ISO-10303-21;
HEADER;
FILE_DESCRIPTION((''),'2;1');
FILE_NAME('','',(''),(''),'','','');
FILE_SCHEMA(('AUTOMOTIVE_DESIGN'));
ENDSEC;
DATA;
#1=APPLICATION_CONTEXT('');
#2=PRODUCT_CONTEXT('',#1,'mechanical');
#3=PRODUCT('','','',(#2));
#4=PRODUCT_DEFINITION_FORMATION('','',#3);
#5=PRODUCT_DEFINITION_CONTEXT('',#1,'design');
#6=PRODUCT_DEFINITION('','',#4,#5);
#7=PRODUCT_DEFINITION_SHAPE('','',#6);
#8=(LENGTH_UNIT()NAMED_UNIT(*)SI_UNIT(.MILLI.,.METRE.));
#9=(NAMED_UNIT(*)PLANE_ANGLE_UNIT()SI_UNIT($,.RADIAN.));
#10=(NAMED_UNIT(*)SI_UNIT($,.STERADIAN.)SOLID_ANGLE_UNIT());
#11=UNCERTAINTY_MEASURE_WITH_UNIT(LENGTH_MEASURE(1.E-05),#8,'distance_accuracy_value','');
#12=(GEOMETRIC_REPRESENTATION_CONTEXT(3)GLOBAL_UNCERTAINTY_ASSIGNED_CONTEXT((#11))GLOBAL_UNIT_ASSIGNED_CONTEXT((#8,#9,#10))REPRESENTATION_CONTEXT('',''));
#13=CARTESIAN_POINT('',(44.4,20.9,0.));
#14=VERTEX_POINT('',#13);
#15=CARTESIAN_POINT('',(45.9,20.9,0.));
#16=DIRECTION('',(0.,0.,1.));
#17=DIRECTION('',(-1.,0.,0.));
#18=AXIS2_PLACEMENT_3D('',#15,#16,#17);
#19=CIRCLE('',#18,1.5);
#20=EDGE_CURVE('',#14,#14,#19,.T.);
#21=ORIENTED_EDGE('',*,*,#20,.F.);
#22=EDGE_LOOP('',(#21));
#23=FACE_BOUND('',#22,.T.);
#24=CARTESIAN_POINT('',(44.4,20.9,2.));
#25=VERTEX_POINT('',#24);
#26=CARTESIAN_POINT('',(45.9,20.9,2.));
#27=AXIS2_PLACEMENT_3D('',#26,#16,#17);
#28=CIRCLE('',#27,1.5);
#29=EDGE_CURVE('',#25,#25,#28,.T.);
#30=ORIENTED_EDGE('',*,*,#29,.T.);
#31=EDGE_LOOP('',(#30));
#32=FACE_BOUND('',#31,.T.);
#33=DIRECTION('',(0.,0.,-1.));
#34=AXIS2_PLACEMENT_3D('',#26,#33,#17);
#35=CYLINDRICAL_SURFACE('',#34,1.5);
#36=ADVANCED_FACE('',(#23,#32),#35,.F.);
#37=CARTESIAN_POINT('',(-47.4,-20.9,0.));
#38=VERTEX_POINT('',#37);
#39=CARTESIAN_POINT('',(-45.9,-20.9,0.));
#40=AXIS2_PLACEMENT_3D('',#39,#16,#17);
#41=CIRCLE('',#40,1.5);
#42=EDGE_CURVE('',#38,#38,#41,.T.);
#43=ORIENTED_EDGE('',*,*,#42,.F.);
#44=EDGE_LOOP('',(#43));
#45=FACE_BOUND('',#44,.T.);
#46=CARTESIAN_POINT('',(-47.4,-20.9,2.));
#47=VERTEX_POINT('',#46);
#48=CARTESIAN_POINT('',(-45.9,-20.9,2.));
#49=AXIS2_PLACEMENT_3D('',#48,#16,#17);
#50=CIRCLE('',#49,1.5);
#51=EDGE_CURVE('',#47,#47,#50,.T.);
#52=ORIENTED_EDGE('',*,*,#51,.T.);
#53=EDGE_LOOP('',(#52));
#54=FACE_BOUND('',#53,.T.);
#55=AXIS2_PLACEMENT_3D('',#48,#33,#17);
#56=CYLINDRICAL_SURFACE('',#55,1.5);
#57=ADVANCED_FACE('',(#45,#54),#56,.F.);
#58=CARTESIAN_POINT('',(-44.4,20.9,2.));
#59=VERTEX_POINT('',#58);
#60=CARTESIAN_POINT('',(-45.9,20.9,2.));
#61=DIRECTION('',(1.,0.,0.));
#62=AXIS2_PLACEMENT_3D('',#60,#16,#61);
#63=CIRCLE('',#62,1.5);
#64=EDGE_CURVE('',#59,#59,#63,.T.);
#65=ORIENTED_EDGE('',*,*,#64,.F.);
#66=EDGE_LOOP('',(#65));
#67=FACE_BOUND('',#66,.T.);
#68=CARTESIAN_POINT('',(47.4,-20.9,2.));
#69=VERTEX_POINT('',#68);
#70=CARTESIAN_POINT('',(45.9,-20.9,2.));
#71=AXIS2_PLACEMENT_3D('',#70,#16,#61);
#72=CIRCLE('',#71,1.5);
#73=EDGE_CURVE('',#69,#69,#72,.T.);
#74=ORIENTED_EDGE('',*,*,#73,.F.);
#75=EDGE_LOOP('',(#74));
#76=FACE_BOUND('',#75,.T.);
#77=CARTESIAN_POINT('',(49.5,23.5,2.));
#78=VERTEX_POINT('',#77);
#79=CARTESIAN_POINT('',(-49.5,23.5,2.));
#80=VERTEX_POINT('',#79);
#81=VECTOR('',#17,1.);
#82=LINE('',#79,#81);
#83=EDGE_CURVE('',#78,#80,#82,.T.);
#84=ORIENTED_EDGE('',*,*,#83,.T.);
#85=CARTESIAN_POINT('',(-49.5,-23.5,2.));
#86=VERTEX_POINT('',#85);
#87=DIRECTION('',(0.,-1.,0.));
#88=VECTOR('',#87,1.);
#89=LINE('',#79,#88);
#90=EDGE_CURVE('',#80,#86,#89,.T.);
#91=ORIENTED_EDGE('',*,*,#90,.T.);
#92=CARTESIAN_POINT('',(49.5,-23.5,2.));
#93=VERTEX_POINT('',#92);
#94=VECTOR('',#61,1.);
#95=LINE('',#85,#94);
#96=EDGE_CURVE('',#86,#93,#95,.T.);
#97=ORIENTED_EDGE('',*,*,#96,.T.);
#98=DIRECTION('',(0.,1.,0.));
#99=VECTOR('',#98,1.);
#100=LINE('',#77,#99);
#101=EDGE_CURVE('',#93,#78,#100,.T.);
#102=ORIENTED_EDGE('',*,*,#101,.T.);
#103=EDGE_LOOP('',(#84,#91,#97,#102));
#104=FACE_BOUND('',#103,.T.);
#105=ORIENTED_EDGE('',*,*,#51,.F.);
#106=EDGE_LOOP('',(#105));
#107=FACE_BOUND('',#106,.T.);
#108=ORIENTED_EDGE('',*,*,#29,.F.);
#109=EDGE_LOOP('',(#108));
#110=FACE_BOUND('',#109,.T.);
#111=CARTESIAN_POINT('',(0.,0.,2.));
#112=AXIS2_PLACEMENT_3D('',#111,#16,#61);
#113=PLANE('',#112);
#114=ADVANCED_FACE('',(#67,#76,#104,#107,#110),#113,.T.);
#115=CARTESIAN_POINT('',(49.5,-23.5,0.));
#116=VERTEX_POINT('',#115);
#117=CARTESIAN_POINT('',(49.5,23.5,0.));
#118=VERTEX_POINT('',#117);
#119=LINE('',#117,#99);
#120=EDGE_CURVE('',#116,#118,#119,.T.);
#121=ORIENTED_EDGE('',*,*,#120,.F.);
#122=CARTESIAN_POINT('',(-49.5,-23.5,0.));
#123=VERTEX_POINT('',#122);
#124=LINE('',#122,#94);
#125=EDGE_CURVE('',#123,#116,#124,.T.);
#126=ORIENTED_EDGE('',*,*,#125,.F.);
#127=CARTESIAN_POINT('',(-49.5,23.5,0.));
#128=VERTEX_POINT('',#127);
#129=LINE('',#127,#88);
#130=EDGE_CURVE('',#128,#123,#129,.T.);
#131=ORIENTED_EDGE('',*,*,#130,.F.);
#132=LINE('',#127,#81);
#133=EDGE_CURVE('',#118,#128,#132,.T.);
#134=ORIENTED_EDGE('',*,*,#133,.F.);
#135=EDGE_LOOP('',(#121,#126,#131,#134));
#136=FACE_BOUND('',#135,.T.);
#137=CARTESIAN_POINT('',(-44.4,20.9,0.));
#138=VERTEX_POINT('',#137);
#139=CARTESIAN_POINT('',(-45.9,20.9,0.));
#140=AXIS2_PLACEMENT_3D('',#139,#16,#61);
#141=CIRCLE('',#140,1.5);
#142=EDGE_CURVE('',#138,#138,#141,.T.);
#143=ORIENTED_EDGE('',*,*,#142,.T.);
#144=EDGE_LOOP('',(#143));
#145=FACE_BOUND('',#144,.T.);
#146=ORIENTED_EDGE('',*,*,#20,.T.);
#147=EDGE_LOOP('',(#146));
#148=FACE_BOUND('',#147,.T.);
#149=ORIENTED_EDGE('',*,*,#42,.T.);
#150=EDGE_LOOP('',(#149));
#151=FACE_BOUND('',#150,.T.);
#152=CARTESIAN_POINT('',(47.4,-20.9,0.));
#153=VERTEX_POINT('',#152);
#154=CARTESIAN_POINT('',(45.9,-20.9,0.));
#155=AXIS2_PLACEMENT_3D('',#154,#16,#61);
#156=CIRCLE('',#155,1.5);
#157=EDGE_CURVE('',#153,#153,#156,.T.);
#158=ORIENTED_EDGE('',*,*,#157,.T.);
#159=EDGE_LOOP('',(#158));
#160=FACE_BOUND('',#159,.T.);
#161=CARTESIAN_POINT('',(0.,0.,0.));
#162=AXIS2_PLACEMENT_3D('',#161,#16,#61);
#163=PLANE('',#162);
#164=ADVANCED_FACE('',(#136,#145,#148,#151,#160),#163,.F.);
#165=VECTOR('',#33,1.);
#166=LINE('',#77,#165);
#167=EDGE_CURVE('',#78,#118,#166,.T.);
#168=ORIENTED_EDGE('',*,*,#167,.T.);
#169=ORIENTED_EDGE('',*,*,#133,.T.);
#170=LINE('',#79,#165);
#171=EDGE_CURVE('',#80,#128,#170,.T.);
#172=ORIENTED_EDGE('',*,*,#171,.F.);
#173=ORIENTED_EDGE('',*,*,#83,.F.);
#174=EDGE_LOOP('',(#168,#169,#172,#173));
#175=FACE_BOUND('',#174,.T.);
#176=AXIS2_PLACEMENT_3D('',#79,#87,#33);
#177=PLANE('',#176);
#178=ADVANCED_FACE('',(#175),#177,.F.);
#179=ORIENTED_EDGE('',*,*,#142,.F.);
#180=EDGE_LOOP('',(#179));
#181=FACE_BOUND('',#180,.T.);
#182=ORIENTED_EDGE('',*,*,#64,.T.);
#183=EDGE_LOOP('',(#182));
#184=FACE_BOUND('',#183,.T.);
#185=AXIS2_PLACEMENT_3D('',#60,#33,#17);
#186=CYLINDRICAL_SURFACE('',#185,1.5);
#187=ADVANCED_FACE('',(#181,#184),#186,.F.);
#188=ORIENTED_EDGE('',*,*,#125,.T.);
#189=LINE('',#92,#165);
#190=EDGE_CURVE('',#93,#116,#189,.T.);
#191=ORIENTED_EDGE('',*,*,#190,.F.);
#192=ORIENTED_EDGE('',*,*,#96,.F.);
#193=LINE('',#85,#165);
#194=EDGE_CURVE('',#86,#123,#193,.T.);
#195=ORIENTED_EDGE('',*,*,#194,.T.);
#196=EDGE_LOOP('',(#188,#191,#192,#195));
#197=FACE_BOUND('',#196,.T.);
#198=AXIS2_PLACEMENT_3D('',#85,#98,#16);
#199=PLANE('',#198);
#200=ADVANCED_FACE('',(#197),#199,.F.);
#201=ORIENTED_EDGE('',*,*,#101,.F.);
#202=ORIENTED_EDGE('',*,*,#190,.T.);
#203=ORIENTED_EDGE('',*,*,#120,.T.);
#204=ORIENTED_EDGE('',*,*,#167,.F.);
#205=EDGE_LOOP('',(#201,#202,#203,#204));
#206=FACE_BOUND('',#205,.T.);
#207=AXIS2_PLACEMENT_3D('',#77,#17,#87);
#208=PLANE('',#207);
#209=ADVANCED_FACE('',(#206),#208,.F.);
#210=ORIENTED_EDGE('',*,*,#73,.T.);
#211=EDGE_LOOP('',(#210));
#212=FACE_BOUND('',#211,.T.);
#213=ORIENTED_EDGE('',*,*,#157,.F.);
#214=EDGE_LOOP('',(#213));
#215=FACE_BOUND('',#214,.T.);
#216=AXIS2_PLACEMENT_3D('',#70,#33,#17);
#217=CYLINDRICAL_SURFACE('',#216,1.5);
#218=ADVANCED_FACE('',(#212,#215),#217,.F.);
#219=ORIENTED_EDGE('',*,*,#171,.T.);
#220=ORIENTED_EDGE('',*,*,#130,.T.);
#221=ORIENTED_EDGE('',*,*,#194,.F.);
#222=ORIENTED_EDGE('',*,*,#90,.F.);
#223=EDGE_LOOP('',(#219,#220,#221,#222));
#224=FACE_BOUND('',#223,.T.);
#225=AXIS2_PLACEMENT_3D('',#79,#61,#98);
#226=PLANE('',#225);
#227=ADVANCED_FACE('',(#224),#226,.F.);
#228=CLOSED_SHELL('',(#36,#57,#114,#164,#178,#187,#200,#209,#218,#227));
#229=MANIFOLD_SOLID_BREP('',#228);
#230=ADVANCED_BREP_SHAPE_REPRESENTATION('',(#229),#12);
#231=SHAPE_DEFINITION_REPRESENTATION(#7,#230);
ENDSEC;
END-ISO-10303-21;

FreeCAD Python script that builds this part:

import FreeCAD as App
import Part
import Sketcher

V = App.Vector
Q = App.Units.Quantity

doc = App.newDocument("Part")
params = doc.addObject("Spreadsheet::Sheet", "Params")
for row, (alias, value) in enumerate([
    ("sketch1_diameter", "3 mm"),
    ("sketch1_width", "99 mm"),
    ("sketch1_height", "47 mm"),
    ("pad1_length", "2 mm"),
], start=1):
    params.set(f"A{row}", alias)
    params.set(f"B{row}", "=" + value)
    params.setAlias(f"B{row}", alias)

body = doc.addObject("PartDesign::Body", "Body")

# Sketch on XY plane
sketch1 = doc.addObject("Sketcher::SketchObject", "Sketch")
body.addObject(sketch1)
sketch1.AttachmentSupport = (doc.XY_Plane, [""])
sketch1.MapMode = "FlatFace"
sketch1.addGeometry([
    Part.LineSegment(V(-49.5, 23.5, 0), V(-49.5, -23.5, 0)),  # 0
    Part.LineSegment(V(-49.5, -23.5, 0), V(49.5, -23.5, 0)),  # 1
    Part.LineSegment(V(49.5, -23.5, 0), V(49.5, 23.5, 0)),  # 2
    Part.LineSegment(V(49.5, 23.5, 0), V(-49.5, 23.5, 0)),  # 3
    Part.Circle(V(-45.9, -20.9, 0), V(0, 0, 1), 1.5),  # 4
    Part.Circle(V(45.9, -20.9, 0), V(0, 0, 1), 1.5),  # 5
    Part.Circle(V(-45.9, 20.9, 0), V(0, 0, 1), 1.5),  # 6
    Part.Circle(V(45.9, 20.9, 0), V(0, 0, 1), 1.5),  # 7
], False)
sketch1.addConstraint([
    Sketcher.Constraint("Coincident", 0, 2, 1, 1),
    Sketcher.Constraint("Coincident", 1, 2, 2, 1),
    Sketcher.Constraint("Coincident", 2, 2, 3, 1),
    Sketcher.Constraint("Coincident", 3, 2, 0, 1),
    Sketcher.Constraint("Vertical", 0),
    Sketcher.Constraint("Horizontal", 1),
    Sketcher.Constraint("Vertical", 2),
    Sketcher.Constraint("Horizontal", 3),
    Sketcher.Constraint("Equal", 4, 5),
    Sketcher.Constraint("Equal", 5, 6),
    Sketcher.Constraint("Equal", 6, 7),
    Sketcher.Constraint("Symmetric", 5, 3, 6, 3, -1, 1),
    Sketcher.Constraint("Symmetric", 4, 3, 7, 3, -1, 1),
    Sketcher.Constraint("Symmetric", 0, 2, 2, 2, -1, 1),
    Sketcher.Constraint("Symmetric", 4, 3, 5, 3, -2),
    Sketcher.Constraint("Diameter", 4, Q("3 mm")),
    Sketcher.Constraint("DistanceX", 1, 1, 1, 2, Q("99 mm")),
    Sketcher.Constraint("DistanceY", 0, 2, 0, 1, Q("47 mm")),
    Sketcher.Constraint("DistanceX", 4, 3, -1, 1, Q("45.9 mm")),
    Sketcher.Constraint("DistanceY", 4, 3, -1, 1, Q("20.9 mm")),
])
sketch1.setExpression("Constraints[15]", "Params.sketch1_diameter")
sketch1.setExpression("Constraints[16]", "Params.sketch1_width")
sketch1.setExpression("Constraints[17]", "Params.sketch1_height")
pad1 = doc.addObject("PartDesign::Pad", "Pad")
body.addObject(pad1)
pad1.Profile = sketch1
pad1.setExpression("Length", "Params.pad1_length")

doc.recompute()
